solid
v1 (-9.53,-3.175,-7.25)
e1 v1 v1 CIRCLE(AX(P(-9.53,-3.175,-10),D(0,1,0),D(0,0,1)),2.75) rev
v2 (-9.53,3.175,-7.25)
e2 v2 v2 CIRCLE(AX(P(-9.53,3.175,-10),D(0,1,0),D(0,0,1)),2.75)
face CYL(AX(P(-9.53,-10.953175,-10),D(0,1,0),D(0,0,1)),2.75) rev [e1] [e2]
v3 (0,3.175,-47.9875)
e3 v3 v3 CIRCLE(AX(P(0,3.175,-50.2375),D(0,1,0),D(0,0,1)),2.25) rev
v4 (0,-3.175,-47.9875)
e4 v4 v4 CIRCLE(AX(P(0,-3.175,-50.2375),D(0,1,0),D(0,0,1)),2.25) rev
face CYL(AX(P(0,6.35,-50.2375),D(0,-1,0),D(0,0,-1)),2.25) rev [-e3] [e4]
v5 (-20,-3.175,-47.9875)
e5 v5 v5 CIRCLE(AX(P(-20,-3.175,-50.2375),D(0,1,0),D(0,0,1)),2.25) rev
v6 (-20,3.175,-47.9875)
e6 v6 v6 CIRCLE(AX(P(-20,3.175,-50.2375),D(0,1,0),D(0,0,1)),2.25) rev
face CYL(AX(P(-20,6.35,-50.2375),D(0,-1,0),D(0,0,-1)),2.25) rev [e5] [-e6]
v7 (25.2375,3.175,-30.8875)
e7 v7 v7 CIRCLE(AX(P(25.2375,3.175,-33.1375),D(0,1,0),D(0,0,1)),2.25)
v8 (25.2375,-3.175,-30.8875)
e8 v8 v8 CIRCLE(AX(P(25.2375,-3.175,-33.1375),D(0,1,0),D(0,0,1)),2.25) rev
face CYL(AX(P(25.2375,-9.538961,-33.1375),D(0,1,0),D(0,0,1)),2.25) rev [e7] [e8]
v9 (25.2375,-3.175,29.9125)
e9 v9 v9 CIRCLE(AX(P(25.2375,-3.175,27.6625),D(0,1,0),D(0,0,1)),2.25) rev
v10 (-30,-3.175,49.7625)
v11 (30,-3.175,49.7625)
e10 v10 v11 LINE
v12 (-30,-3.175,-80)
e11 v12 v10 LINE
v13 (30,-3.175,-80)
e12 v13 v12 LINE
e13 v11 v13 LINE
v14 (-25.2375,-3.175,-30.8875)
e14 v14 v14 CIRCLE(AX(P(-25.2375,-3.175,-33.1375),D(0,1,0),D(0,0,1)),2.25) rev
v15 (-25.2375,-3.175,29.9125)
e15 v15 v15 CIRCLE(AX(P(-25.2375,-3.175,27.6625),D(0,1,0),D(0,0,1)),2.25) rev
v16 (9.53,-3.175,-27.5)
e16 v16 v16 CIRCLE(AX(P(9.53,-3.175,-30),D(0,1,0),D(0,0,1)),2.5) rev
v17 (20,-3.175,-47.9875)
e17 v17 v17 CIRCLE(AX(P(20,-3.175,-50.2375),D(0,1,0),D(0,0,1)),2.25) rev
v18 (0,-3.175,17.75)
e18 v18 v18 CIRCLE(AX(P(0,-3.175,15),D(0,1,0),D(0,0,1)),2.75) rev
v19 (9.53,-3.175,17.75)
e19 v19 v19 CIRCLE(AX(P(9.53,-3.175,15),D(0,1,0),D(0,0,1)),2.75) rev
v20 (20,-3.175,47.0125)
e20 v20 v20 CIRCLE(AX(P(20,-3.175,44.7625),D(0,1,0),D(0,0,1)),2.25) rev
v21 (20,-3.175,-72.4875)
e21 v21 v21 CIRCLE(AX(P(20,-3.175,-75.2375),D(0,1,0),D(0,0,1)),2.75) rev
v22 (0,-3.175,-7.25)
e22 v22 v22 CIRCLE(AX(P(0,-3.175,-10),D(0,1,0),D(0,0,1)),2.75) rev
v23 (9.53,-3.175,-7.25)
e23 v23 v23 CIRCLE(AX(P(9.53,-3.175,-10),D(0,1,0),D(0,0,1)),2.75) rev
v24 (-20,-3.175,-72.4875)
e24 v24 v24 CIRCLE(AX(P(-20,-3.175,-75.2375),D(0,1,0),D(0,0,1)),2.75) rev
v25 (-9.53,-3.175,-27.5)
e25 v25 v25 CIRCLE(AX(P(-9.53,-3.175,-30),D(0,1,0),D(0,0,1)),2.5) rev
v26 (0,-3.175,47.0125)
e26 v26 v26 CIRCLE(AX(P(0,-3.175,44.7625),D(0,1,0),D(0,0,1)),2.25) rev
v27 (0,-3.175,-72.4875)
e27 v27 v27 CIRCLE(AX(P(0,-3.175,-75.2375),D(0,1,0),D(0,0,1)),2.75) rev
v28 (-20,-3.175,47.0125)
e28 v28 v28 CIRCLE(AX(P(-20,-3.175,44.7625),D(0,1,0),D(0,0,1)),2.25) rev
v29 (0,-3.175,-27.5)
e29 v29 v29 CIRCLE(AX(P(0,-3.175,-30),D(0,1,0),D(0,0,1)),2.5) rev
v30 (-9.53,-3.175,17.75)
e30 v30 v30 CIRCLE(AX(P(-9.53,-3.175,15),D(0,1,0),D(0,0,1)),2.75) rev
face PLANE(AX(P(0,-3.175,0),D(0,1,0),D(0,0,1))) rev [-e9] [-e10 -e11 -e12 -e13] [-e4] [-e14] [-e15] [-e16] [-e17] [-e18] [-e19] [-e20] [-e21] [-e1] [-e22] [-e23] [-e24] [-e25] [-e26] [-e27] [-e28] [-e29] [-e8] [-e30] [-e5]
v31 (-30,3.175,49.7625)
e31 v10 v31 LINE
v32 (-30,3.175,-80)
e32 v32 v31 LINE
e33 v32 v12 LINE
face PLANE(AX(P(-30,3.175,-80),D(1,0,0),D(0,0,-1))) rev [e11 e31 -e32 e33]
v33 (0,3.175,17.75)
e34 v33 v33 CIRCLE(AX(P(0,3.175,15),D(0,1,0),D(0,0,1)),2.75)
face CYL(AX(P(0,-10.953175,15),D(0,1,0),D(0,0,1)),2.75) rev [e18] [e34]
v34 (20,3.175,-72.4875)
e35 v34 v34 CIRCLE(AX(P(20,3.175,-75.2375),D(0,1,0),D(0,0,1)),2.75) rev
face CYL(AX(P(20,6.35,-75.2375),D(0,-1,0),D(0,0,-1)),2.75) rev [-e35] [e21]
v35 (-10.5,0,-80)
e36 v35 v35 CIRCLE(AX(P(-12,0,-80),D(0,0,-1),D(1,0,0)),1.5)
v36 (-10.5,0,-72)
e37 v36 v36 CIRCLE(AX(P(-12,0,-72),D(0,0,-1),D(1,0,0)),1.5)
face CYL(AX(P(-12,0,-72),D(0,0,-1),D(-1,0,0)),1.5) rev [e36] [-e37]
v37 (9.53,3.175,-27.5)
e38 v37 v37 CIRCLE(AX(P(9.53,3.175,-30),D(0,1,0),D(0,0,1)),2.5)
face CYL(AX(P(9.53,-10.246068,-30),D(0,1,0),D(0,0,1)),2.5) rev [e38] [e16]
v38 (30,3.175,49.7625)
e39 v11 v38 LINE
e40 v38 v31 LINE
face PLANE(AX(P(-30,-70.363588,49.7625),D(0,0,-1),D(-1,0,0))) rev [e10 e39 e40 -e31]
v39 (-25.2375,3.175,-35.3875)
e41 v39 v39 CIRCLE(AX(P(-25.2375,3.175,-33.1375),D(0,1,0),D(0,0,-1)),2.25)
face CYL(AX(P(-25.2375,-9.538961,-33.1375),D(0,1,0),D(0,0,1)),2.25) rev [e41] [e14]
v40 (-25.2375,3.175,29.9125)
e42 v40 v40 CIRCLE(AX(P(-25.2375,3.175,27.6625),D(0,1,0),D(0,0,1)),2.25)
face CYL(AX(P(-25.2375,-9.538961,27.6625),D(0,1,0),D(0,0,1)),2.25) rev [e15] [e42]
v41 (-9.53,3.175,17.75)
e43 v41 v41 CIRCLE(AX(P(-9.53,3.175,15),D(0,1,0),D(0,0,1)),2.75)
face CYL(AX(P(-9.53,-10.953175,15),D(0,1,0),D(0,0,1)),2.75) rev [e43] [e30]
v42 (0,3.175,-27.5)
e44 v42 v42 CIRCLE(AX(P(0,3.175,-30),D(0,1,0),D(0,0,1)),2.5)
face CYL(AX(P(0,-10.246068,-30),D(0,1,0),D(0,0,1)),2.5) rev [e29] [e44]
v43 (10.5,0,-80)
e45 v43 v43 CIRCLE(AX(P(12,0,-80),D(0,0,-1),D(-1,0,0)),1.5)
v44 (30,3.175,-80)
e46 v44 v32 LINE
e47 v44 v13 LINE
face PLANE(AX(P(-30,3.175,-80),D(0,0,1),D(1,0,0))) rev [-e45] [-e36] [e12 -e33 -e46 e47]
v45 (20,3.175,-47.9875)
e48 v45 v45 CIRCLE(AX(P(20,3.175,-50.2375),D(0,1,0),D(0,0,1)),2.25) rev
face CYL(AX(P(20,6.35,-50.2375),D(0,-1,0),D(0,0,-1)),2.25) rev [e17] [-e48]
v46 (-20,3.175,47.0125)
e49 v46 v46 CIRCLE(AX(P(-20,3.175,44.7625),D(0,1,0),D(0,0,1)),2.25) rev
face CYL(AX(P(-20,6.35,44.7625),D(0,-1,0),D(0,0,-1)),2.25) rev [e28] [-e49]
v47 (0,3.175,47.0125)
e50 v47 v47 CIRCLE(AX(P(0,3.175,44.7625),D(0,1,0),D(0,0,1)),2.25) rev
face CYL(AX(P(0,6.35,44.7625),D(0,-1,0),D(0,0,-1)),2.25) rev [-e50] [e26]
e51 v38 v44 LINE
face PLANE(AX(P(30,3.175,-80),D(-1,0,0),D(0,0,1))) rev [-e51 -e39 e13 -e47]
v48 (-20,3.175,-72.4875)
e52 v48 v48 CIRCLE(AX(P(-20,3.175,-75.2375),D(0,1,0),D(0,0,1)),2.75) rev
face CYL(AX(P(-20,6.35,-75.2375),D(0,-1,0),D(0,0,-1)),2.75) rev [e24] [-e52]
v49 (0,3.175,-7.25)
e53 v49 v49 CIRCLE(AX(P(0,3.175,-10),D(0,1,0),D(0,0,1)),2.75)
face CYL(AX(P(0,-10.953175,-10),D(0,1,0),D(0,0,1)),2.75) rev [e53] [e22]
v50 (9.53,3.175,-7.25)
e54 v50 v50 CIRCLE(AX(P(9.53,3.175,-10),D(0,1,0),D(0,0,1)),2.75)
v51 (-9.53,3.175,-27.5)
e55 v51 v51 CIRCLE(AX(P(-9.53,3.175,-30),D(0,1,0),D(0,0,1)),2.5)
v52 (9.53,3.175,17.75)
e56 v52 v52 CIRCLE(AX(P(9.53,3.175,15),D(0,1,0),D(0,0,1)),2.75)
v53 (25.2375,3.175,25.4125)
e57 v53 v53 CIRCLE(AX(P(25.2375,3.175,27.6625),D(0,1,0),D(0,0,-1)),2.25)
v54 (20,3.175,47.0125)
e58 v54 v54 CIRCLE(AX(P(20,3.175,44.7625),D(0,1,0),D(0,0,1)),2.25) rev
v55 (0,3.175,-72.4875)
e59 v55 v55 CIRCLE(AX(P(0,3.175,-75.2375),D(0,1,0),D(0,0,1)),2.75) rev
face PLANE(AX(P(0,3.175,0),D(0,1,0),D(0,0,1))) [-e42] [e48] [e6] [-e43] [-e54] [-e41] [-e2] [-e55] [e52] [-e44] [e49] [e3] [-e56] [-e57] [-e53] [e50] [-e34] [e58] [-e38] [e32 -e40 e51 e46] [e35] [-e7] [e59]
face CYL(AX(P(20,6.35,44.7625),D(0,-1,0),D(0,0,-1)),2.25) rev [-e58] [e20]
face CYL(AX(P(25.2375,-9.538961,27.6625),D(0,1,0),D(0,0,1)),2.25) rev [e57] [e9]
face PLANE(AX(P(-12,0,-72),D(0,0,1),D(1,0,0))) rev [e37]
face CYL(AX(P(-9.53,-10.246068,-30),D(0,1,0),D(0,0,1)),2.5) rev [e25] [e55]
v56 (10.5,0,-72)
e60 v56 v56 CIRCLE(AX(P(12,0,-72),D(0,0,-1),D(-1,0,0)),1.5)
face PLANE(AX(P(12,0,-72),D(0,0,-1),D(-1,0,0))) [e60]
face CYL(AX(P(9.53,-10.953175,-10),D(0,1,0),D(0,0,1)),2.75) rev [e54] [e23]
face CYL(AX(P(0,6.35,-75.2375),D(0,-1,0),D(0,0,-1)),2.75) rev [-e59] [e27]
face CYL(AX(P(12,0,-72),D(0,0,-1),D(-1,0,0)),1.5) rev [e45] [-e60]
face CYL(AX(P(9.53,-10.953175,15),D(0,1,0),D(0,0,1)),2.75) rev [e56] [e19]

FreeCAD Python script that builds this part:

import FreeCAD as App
import Part
import Sketcher

doc = App.newDocument("Part")
body = doc.addObject("PartDesign::Body", "Body")

# Sketch on XZ plane
sketch1 = doc.addObject("Sketcher::SketchObject", "Sketch")
body.addObject(sketch1)
sketch1.AttachmentSupport = (doc.XZ_Plane, [""])
sketch1.MapMode = "FlatFace"
sketch1.addGeometry([
    Part.LineSegment(App.Vector(-30, -80, 0), App.Vector(-30, 80, 0)),
    Part.LineSegment(App.Vector(-30, 80, 0), App.Vector(30, 80, 0)),
    Part.LineSegment(App.Vector(30, 80, 0), App.Vector(30, -80, 0)),
    Part.LineSegment(App.Vector(30, -80, 0), App.Vector(-30, -80, 0)),
], False)
sketch1.addConstraint([
    Sketcher.Constraint("Coincident", 0, 2, 1, 1),
    Sketcher.Constraint("Coincident", 1, 2, 2, 1),
    Sketcher.Constraint("Coincident", 2, 2, 3, 1),
    Sketcher.Constraint("Coincident", 3, 2, 0, 1),
    Sketcher.Constraint("Vertical", 0),
    Sketcher.Constraint("Horizontal", 1),
    Sketcher.Constraint("Vertical", 2),
    Sketcher.Constraint("Horizontal", 3),
    Sketcher.Constraint("Symmetric", 0, 2, 2, 2, -1, 1),
    Sketcher.Constraint("DistanceX", 1, 1, 1, 2, 60.0),
    Sketcher.Constraint("DistanceY", 0, 1, 0, 2, 160.0),
])
pad1 = doc.addObject("PartDesign::Pad", "Pad")
body.addObject(pad1)
pad1.Profile = sketch1
pad1.Length = 6.35
pad1.Midplane = True

# Sketch on XZ plane
sketch2 = doc.addObject("Sketcher::SketchObject", "Sketch001")
body.addObject(sketch2)
sketch2.AttachmentSupport = (doc.XZ_Plane, [""])
sketch2.MapMode = "FlatFace"
sketch2.addGeometry([
    Part.Circle(App.Vector(20, -75.2375, 0), App.Vector(0, 0, 1), 2.75),  # 0
    Part.Circle(App.Vector(20, -50.2375, 0), App.Vector(0, 0, 1), 2.25),  # 1
    Part.Circle(App.Vector(-20, -50.2375, 0), App.Vector(0, 0, 1), 2.25),  # 2
    Part.Circle(App.Vector(-20, -75.2375, 0), App.Vector(0, 0, 1), 2.75),  # 3
    Part.Circle(App.Vector(0, -75.2375, 0), App.Vector(0, 0, 1), 2.75),  # 4
    Part.Circle(App.Vector(0, -50.2375, 0), App.Vector(0, 0, 1), 2.25),  # 5
    Part.Circle(App.Vector(20, 44.7625, 0), App.Vector(0, 0, 1), 2.25),  # 6
    Part.Circle(App.Vector(-20, 44.7625, 0), App.Vector(0, 0, 1), 2.25),  # 7
    Part.Circle(App.Vector(0, 44.7625, 0), App.Vector(0, 0, 1), 2.25),  # 8
], False)
sketch2.addConstraint([
    Sketcher.Constraint("Equal", 1, 2),
    Sketcher.Constraint("Equal", 0, 3),
    Sketcher.Constraint("Equal", 3, 4),
    Sketcher.Constraint("Equal", 2, 5),
    Sketcher.Constraint("Equal", 5, 6),
    Sketcher.Constraint("Equal", 6, 7),
    Sketcher.Constraint("Equal", 7, 8),
    Sketcher.Constraint("Symmetric", 1, 3, 2, 3, -2),
    Sketcher.Constraint("Symmetric", 0, 3, 3, 3, -2),
    Sketcher.Constraint("Symmetric", 6, 3, 7, 3, -2),
    Sketcher.Constraint("PointOnObject", 4, 3, -2),
    Sketcher.Constraint("PointOnObject", 5, 3, -2),
    Sketcher.Constraint("PointOnObject", 8, 3, -2),
    Sketcher.Constraint("Horizontal", 3, 3, 4, 3),
    Sketcher.Constraint("Horizontal", 2, 3, 5, 3),
    Sketcher.Constraint("Horizontal", 7, 3, 8, 3),
    Sketcher.Constraint("Vertical", 0, 3, 1, 3),
    Sketcher.Constraint("Vertical", 1, 3, 6, 3),
    Sketcher.Constraint("Diameter", 0, 5.5),
    Sketcher.Constraint("Diameter", 1, 4.5),
    Sketcher.Constraint("DistanceX", -1, 1, 0, 3, 20.0),
    Sketcher.Constraint("DistanceY", 0, 3, 1, 3, 25.0),
    Sketcher.Constraint("DistanceY", 1, 3, 6, 3, 95.0),
    Sketcher.Constraint("DistanceY", 0, 3, -1, 1, 75.2375),
])
pocket1 = doc.addObject("PartDesign::Pocket", "Pocket")
body.addObject(pocket1)
pocket1.Profile = sketch2
pocket1.Type = "ThroughAll"
pocket1.Midplane = True

# Sketch on XY plane
sketch3 = doc.addObject("Sketcher::SketchObject", "Sketch002")
body.addObject(sketch3)
sketch3.AttachmentSupport = (doc.XY_Plane, [""])
sketch3.MapMode = "FlatFace"
sketch3.AttachmentOffset = App.Placement(App.Vector(0, 0, -80), App.Rotation())
sketch3.addGeometry([
    Part.Circle(App.Vector(12, 0, 0), App.Vector(0, 0, 1), 1.5),
    Part.Circle(App.Vector(-12, 0, 0), App.Vector(0, 0, 1), 1.5),
], False)
sketch3.addConstraint([
    Sketcher.Constraint("Equal", 0, 1),
    Sketcher.Constraint("Symmetric", 0, 3, 1, 3, -1, 1),
    Sketcher.Constraint("PointOnObject", 0, 3, -1),
    Sketcher.Constraint("Diameter", 0, 3.0),
    Sketcher.Constraint("DistanceX", -1, 1, 0, 3, 12.0),
])
pocket2 = doc.addObject("PartDesign::Pocket", "Pocket001")
body.addObject(pocket2)
pocket2.Profile = sketch3
pocket2.Length = 8
pocket2.Reversed = True

# Sketch on XZ plane
sketch4 = doc.addObject("Sketcher::SketchObject", "Sketch003")
body.addObject(sketch4)
sketch4.AttachmentSupport = (doc.XZ_Plane, [""])
sketch4.MapMode = "FlatFace"
sketch4.AttachmentOffset = App.Placement(App.Vector(0, 0, -3.175), App.Rotation())
sketch4.addGeometry([
    Part.Circle(App.Vector(-25.2375, 27.6625, 0), App.Vector(0, 0, 1), 2.25),
    Part.Circle(App.Vector(25.2375, 27.6625, 0), App.Vector(0, 0, 1), 2.25),
    Part.Circle(App.Vector(25.2375, -33.1375, 0), App.Vector(0, 0, 1), 2.25),
    Part.Circle(App.Vector(-25.2375, -33.1375, 0), App.Vector(0, 0, 1), 2.25),
], False)
sketch4.addConstraint([
    Sketcher.Constraint("Equal", 0, 1),
    Sketcher.Constraint("Equal", 1, 2),
    Sketcher.Constraint("Equal", 2, 3),
    Sketcher.Constraint("Symmetric", 0, 3, 1, 3, -2),
    Sketcher.Constraint("Symmetric", 2, 3, 3, 3, -2),
    Sketcher.Constraint("Vertical", 1, 3, 2, 3),
    Sketcher.Constraint("Diameter", 0, 4.5),
    Sketcher.Constraint("DistanceY", 2, 3, 1, 3, 60.8),
    Sketcher.Constraint("DistanceX", 0, 3, 1, 3, 50.475),
    Sketcher.Constraint("DistanceY", -1, 1, 0, 3, 27.6625),
])
pocket3 = doc.addObject("PartDesign::Pocket", "Pocket002")
body.addObject(pocket3)
pocket3.Profile = sketch4
pocket3.Length = 6.35
pocket3.Reversed = True

# Sketch on XZ plane
sketch5 = doc.addObject("Sketcher::SketchObject", "Sketch004")
body.addObject(sketch5)
sketch5.AttachmentSupport = (doc.XZ_Plane, [""])
sketch5.MapMode = "FlatFace"
sketch5.AttachmentOffset = App.Placement(App.Vector(0, 0, -3.175), App.Rotation())
sketch5.addGeometry([
    Part.Circle(App.Vector(0, -30, 0), App.Vector(0, 0, 1), 2.5),
    Part.Circle(App.Vector(9.53, -30, 0), App.Vector(0, 0, 1), 2.5),
    Part.Circle(App.Vector(-9.53, -30, 0), App.Vector(0, 0, 1), 2.5),
], False)
sketch5.addConstraint([
    Sketcher.Constraint("Equal", 0, 1),
    Sketcher.Constraint("Equal", 1, 2),
    Sketcher.Constraint("Symmetric", 1, 3, 2, 3, -2),
    Sketcher.Constraint("PointOnObject", 0, 3, -2),
    Sketcher.Constraint("Horizontal", 0, 3, 1, 3),
    Sketcher.Constraint("Diameter", 0, 5.0),
    Sketcher.Constraint("DistanceY", 0, 3, -1, 1, 30.0),
    Sketcher.Constraint("DistanceX", -1, 1, 1, 3, 9.53),
])
pocket4 = doc.addObject("PartDesign::Pocket", "Pocket003")
body.addObject(pocket4)
pocket4.Profile = sketch5
pocket4.Length = 6.35
pocket4.Reversed = True

# Sketch on XZ plane
sketch6 = doc.addObject("Sketcher::SketchObject", "Sketch005")
body.addObject(sketch6)
sketch6.AttachmentSupport = (doc.XZ_Plane, [""])
sketch6.MapMode = "FlatFace"
sketch6.AttachmentOffset = App.Placement(App.Vector(0, 0, -3.175), App.Rotation())
sketch6.addGeometry([
    Part.Circle(App.Vector(0, -10, 0), App.Vector(0, 0, 1), 2.75),  # 0
    Part.Circle(App.Vector(0, 15, 0), App.Vector(0, 0, 1), 2.75),  # 1
    Part.Circle(App.Vector(9.53, -10, 0), App.Vector(0, 0, 1), 2.75),  # 2
    Part.Circle(App.Vector(9.53, 15, 0), App.Vector(0, 0, 1), 2.75),  # 3
    Part.Circle(App.Vector(-9.53, -10, 0), App.Vector(0, 0, 1), 2.75),  # 4
    Part.Circle(App.Vector(-9.53, 15, 0), App.Vector(0, 0, 1), 2.75),  # 5
], False)
sketch6.addConstraint([
    Sketcher.Constraint("Equal", 0, 1),
    Sketcher.Constraint("Equal", 1, 2),
    Sketcher.Constraint("Equal", 2, 3),
    Sketcher.Constraint("Equal", 3, 4),
    Sketcher.Constraint("Equal", 4, 5),
    Sketcher.Constraint("Symmetric", 2, 3, 4, 3, -2),
    Sketcher.Constraint("Symmetric", 3, 3, 5, 3, -2),
    Sketcher.Constraint("PointOnObject", 0, 3, -2),
    Sketcher.Constraint("PointOnObject", 1, 3, -2),
    Sketcher.Constraint("Horizontal", 0, 3, 2, 3),
    Sketcher.Constraint("Horizontal", 1, 3, 3, 3),
    Sketcher.Constraint("Vertical", 2, 3, 3, 3),
    Sketcher.Constraint("Diameter", 0, 5.5),
    Sketcher.Constraint("DistanceY", 0, 3, -1, 1, 10.0),
    Sketcher.Constraint("DistanceY", -1, 1, 1, 3, 15.0),
    Sketcher.Constraint("DistanceX", -1, 1, 2, 3, 9.53),
])
pocket5 = doc.addObject("PartDesign::Pocket", "Pocket004")
body.addObject(pocket5)
pocket5.Profile = sketch6
pocket5.Length = 6.35
pocket5.Reversed = True

# Sketch on XZ plane
sketch7 = doc.addObject("Sketcher::SketchObject", "Sketch006")
body.addObject(sketch7)
sketch7.AttachmentSupport = (doc.XZ_Plane, [""])
sketch7.MapMode = "FlatFace"
sketch7.AttachmentOffset = App.Placement(App.Vector(0, 0, -3.175), App.Rotation())
sketch7.addGeometry([
    Part.LineSegment(App.Vector(-30, 49.7625, 0), App.Vector(-30, 80, 0)),
    Part.LineSegment(App.Vector(-30, 80, 0), App.Vector(30, 80, 0)),
    Part.LineSegment(App.Vector(30, 80, 0), App.Vector(30, 49.7625, 0)),
    Part.LineSegment(App.Vector(30, 49.7625, 0), App.Vector(-30, 49.7625, 0)),
], False)
sketch7.addConstraint([
    Sketcher.Constraint("Coincident", 0, 2, 1, 1),
    Sketcher.Constraint("Coincident", 1, 2, 2, 1),
    Sketcher.Constraint("Coincident", 2, 2, 3, 1),
    Sketcher.Constraint("Coincident", 3, 2, 0, 1),
    Sketcher.Constraint("Vertical", 0),
    Sketcher.Constraint("Horizontal", 1),
    Sketcher.Constraint("Vertical", 2),
    Sketcher.Constraint("Horizontal", 3),
    Sketcher.Constraint("DistanceX", 1, 1, 1, 2, 60.0),
    Sketcher.Constraint("DistanceX", 0, 2, -1, 1, 30.0),
    Sketcher.Constraint("DistanceY", -1, 1, 0, 2, 80.0),
    Sketcher.Constraint("DistanceY", 0, 1, 0, 2, 30.2375),
])
pocket6 = doc.addObject("PartDesign::Pocket", "Pocket005")
body.addObject(pocket6)
pocket6.Profile = sketch7
pocket6.Length = 6.35
pocket6.Reversed = True

doc.recompute()
